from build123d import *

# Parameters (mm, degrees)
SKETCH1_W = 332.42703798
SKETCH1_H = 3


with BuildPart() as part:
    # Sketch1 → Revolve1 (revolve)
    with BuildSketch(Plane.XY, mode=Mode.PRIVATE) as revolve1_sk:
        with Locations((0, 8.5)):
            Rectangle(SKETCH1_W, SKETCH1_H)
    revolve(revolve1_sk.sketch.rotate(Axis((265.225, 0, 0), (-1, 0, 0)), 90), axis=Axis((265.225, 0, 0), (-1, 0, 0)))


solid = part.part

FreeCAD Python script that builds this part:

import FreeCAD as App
import Part
import Sketcher
from FreeCAD import Vector
Q = App.Units.Quantity

doc = App.newDocument("Part")
body = doc.addObject("PartDesign::Body", "Body")

sketch1 = body.newObject("Sketcher::SketchObject", "Sketch")
sketch1.AttachmentSupport = (doc.getObject("XY_Plane"), [""])
sketch1.MapMode = "FlatFace"
sketch1.addGeometry(Part.LineSegment(Vector(-166.2, 10, 0), Vector(-166.2, 7, 0)), False)
sketch1.addGeometry(Part.LineSegment(Vector(-166.2, 7, 0), Vector(166.2, 7, 0)), False)
sketch1.addGeometry(Part.LineSegment(Vector(166.2, 7, 0), Vector(166.2, 10, 0)), False)
sketch1.addGeometry(Part.LineSegment(Vector(166.2, 10, 0), Vector(-166.2, 10, 0)), False)
sketch1.addConstraint(Sketcher.Constraint("Coincident", 0, 2, 1, 1))
sketch1.addConstraint(Sketcher.Constraint("Coincident", 1, 2, 2, 1))
sketch1.addConstraint(Sketcher.Constraint("Coincident", 2, 2, 3, 1))
sketch1.addConstraint(Sketcher.Constraint("Coincident", 3, 2, 0, 1))
sketch1.addConstraint(Sketcher.Constraint("Vertical", 0))
sketch1.addConstraint(Sketcher.Constraint("Horizontal", 1))
sketch1.addConstraint(Sketcher.Constraint("Vertical", 2))
sketch1.addConstraint(Sketcher.Constraint("Horizontal", 3))
sketch1.addConstraint(Sketcher.Constraint("DistanceY", 0, 2, 0, 1, Q("3 mm")))
sketch1.addConstraint(Sketcher.Constraint("DistanceY", -1, 1, 0, 2, Q("7 mm")))
sketch1.addConstraint(Sketcher.Constraint("DistanceX", 1, 1, 1, 2, Q("332.427038 mm")))
sketch1.addConstraint(Sketcher.Constraint("DistanceX", 0, 2, -1, 1, Q("166.213519 mm")))
revolution = body.newObject("PartDesign::Revolution", "Revolution")
revolution.Profile = sketch1
revolution.ReferenceAxis = (sketch1, ["H_Axis"])
revolution.Angle = 360

doc.recompute()
